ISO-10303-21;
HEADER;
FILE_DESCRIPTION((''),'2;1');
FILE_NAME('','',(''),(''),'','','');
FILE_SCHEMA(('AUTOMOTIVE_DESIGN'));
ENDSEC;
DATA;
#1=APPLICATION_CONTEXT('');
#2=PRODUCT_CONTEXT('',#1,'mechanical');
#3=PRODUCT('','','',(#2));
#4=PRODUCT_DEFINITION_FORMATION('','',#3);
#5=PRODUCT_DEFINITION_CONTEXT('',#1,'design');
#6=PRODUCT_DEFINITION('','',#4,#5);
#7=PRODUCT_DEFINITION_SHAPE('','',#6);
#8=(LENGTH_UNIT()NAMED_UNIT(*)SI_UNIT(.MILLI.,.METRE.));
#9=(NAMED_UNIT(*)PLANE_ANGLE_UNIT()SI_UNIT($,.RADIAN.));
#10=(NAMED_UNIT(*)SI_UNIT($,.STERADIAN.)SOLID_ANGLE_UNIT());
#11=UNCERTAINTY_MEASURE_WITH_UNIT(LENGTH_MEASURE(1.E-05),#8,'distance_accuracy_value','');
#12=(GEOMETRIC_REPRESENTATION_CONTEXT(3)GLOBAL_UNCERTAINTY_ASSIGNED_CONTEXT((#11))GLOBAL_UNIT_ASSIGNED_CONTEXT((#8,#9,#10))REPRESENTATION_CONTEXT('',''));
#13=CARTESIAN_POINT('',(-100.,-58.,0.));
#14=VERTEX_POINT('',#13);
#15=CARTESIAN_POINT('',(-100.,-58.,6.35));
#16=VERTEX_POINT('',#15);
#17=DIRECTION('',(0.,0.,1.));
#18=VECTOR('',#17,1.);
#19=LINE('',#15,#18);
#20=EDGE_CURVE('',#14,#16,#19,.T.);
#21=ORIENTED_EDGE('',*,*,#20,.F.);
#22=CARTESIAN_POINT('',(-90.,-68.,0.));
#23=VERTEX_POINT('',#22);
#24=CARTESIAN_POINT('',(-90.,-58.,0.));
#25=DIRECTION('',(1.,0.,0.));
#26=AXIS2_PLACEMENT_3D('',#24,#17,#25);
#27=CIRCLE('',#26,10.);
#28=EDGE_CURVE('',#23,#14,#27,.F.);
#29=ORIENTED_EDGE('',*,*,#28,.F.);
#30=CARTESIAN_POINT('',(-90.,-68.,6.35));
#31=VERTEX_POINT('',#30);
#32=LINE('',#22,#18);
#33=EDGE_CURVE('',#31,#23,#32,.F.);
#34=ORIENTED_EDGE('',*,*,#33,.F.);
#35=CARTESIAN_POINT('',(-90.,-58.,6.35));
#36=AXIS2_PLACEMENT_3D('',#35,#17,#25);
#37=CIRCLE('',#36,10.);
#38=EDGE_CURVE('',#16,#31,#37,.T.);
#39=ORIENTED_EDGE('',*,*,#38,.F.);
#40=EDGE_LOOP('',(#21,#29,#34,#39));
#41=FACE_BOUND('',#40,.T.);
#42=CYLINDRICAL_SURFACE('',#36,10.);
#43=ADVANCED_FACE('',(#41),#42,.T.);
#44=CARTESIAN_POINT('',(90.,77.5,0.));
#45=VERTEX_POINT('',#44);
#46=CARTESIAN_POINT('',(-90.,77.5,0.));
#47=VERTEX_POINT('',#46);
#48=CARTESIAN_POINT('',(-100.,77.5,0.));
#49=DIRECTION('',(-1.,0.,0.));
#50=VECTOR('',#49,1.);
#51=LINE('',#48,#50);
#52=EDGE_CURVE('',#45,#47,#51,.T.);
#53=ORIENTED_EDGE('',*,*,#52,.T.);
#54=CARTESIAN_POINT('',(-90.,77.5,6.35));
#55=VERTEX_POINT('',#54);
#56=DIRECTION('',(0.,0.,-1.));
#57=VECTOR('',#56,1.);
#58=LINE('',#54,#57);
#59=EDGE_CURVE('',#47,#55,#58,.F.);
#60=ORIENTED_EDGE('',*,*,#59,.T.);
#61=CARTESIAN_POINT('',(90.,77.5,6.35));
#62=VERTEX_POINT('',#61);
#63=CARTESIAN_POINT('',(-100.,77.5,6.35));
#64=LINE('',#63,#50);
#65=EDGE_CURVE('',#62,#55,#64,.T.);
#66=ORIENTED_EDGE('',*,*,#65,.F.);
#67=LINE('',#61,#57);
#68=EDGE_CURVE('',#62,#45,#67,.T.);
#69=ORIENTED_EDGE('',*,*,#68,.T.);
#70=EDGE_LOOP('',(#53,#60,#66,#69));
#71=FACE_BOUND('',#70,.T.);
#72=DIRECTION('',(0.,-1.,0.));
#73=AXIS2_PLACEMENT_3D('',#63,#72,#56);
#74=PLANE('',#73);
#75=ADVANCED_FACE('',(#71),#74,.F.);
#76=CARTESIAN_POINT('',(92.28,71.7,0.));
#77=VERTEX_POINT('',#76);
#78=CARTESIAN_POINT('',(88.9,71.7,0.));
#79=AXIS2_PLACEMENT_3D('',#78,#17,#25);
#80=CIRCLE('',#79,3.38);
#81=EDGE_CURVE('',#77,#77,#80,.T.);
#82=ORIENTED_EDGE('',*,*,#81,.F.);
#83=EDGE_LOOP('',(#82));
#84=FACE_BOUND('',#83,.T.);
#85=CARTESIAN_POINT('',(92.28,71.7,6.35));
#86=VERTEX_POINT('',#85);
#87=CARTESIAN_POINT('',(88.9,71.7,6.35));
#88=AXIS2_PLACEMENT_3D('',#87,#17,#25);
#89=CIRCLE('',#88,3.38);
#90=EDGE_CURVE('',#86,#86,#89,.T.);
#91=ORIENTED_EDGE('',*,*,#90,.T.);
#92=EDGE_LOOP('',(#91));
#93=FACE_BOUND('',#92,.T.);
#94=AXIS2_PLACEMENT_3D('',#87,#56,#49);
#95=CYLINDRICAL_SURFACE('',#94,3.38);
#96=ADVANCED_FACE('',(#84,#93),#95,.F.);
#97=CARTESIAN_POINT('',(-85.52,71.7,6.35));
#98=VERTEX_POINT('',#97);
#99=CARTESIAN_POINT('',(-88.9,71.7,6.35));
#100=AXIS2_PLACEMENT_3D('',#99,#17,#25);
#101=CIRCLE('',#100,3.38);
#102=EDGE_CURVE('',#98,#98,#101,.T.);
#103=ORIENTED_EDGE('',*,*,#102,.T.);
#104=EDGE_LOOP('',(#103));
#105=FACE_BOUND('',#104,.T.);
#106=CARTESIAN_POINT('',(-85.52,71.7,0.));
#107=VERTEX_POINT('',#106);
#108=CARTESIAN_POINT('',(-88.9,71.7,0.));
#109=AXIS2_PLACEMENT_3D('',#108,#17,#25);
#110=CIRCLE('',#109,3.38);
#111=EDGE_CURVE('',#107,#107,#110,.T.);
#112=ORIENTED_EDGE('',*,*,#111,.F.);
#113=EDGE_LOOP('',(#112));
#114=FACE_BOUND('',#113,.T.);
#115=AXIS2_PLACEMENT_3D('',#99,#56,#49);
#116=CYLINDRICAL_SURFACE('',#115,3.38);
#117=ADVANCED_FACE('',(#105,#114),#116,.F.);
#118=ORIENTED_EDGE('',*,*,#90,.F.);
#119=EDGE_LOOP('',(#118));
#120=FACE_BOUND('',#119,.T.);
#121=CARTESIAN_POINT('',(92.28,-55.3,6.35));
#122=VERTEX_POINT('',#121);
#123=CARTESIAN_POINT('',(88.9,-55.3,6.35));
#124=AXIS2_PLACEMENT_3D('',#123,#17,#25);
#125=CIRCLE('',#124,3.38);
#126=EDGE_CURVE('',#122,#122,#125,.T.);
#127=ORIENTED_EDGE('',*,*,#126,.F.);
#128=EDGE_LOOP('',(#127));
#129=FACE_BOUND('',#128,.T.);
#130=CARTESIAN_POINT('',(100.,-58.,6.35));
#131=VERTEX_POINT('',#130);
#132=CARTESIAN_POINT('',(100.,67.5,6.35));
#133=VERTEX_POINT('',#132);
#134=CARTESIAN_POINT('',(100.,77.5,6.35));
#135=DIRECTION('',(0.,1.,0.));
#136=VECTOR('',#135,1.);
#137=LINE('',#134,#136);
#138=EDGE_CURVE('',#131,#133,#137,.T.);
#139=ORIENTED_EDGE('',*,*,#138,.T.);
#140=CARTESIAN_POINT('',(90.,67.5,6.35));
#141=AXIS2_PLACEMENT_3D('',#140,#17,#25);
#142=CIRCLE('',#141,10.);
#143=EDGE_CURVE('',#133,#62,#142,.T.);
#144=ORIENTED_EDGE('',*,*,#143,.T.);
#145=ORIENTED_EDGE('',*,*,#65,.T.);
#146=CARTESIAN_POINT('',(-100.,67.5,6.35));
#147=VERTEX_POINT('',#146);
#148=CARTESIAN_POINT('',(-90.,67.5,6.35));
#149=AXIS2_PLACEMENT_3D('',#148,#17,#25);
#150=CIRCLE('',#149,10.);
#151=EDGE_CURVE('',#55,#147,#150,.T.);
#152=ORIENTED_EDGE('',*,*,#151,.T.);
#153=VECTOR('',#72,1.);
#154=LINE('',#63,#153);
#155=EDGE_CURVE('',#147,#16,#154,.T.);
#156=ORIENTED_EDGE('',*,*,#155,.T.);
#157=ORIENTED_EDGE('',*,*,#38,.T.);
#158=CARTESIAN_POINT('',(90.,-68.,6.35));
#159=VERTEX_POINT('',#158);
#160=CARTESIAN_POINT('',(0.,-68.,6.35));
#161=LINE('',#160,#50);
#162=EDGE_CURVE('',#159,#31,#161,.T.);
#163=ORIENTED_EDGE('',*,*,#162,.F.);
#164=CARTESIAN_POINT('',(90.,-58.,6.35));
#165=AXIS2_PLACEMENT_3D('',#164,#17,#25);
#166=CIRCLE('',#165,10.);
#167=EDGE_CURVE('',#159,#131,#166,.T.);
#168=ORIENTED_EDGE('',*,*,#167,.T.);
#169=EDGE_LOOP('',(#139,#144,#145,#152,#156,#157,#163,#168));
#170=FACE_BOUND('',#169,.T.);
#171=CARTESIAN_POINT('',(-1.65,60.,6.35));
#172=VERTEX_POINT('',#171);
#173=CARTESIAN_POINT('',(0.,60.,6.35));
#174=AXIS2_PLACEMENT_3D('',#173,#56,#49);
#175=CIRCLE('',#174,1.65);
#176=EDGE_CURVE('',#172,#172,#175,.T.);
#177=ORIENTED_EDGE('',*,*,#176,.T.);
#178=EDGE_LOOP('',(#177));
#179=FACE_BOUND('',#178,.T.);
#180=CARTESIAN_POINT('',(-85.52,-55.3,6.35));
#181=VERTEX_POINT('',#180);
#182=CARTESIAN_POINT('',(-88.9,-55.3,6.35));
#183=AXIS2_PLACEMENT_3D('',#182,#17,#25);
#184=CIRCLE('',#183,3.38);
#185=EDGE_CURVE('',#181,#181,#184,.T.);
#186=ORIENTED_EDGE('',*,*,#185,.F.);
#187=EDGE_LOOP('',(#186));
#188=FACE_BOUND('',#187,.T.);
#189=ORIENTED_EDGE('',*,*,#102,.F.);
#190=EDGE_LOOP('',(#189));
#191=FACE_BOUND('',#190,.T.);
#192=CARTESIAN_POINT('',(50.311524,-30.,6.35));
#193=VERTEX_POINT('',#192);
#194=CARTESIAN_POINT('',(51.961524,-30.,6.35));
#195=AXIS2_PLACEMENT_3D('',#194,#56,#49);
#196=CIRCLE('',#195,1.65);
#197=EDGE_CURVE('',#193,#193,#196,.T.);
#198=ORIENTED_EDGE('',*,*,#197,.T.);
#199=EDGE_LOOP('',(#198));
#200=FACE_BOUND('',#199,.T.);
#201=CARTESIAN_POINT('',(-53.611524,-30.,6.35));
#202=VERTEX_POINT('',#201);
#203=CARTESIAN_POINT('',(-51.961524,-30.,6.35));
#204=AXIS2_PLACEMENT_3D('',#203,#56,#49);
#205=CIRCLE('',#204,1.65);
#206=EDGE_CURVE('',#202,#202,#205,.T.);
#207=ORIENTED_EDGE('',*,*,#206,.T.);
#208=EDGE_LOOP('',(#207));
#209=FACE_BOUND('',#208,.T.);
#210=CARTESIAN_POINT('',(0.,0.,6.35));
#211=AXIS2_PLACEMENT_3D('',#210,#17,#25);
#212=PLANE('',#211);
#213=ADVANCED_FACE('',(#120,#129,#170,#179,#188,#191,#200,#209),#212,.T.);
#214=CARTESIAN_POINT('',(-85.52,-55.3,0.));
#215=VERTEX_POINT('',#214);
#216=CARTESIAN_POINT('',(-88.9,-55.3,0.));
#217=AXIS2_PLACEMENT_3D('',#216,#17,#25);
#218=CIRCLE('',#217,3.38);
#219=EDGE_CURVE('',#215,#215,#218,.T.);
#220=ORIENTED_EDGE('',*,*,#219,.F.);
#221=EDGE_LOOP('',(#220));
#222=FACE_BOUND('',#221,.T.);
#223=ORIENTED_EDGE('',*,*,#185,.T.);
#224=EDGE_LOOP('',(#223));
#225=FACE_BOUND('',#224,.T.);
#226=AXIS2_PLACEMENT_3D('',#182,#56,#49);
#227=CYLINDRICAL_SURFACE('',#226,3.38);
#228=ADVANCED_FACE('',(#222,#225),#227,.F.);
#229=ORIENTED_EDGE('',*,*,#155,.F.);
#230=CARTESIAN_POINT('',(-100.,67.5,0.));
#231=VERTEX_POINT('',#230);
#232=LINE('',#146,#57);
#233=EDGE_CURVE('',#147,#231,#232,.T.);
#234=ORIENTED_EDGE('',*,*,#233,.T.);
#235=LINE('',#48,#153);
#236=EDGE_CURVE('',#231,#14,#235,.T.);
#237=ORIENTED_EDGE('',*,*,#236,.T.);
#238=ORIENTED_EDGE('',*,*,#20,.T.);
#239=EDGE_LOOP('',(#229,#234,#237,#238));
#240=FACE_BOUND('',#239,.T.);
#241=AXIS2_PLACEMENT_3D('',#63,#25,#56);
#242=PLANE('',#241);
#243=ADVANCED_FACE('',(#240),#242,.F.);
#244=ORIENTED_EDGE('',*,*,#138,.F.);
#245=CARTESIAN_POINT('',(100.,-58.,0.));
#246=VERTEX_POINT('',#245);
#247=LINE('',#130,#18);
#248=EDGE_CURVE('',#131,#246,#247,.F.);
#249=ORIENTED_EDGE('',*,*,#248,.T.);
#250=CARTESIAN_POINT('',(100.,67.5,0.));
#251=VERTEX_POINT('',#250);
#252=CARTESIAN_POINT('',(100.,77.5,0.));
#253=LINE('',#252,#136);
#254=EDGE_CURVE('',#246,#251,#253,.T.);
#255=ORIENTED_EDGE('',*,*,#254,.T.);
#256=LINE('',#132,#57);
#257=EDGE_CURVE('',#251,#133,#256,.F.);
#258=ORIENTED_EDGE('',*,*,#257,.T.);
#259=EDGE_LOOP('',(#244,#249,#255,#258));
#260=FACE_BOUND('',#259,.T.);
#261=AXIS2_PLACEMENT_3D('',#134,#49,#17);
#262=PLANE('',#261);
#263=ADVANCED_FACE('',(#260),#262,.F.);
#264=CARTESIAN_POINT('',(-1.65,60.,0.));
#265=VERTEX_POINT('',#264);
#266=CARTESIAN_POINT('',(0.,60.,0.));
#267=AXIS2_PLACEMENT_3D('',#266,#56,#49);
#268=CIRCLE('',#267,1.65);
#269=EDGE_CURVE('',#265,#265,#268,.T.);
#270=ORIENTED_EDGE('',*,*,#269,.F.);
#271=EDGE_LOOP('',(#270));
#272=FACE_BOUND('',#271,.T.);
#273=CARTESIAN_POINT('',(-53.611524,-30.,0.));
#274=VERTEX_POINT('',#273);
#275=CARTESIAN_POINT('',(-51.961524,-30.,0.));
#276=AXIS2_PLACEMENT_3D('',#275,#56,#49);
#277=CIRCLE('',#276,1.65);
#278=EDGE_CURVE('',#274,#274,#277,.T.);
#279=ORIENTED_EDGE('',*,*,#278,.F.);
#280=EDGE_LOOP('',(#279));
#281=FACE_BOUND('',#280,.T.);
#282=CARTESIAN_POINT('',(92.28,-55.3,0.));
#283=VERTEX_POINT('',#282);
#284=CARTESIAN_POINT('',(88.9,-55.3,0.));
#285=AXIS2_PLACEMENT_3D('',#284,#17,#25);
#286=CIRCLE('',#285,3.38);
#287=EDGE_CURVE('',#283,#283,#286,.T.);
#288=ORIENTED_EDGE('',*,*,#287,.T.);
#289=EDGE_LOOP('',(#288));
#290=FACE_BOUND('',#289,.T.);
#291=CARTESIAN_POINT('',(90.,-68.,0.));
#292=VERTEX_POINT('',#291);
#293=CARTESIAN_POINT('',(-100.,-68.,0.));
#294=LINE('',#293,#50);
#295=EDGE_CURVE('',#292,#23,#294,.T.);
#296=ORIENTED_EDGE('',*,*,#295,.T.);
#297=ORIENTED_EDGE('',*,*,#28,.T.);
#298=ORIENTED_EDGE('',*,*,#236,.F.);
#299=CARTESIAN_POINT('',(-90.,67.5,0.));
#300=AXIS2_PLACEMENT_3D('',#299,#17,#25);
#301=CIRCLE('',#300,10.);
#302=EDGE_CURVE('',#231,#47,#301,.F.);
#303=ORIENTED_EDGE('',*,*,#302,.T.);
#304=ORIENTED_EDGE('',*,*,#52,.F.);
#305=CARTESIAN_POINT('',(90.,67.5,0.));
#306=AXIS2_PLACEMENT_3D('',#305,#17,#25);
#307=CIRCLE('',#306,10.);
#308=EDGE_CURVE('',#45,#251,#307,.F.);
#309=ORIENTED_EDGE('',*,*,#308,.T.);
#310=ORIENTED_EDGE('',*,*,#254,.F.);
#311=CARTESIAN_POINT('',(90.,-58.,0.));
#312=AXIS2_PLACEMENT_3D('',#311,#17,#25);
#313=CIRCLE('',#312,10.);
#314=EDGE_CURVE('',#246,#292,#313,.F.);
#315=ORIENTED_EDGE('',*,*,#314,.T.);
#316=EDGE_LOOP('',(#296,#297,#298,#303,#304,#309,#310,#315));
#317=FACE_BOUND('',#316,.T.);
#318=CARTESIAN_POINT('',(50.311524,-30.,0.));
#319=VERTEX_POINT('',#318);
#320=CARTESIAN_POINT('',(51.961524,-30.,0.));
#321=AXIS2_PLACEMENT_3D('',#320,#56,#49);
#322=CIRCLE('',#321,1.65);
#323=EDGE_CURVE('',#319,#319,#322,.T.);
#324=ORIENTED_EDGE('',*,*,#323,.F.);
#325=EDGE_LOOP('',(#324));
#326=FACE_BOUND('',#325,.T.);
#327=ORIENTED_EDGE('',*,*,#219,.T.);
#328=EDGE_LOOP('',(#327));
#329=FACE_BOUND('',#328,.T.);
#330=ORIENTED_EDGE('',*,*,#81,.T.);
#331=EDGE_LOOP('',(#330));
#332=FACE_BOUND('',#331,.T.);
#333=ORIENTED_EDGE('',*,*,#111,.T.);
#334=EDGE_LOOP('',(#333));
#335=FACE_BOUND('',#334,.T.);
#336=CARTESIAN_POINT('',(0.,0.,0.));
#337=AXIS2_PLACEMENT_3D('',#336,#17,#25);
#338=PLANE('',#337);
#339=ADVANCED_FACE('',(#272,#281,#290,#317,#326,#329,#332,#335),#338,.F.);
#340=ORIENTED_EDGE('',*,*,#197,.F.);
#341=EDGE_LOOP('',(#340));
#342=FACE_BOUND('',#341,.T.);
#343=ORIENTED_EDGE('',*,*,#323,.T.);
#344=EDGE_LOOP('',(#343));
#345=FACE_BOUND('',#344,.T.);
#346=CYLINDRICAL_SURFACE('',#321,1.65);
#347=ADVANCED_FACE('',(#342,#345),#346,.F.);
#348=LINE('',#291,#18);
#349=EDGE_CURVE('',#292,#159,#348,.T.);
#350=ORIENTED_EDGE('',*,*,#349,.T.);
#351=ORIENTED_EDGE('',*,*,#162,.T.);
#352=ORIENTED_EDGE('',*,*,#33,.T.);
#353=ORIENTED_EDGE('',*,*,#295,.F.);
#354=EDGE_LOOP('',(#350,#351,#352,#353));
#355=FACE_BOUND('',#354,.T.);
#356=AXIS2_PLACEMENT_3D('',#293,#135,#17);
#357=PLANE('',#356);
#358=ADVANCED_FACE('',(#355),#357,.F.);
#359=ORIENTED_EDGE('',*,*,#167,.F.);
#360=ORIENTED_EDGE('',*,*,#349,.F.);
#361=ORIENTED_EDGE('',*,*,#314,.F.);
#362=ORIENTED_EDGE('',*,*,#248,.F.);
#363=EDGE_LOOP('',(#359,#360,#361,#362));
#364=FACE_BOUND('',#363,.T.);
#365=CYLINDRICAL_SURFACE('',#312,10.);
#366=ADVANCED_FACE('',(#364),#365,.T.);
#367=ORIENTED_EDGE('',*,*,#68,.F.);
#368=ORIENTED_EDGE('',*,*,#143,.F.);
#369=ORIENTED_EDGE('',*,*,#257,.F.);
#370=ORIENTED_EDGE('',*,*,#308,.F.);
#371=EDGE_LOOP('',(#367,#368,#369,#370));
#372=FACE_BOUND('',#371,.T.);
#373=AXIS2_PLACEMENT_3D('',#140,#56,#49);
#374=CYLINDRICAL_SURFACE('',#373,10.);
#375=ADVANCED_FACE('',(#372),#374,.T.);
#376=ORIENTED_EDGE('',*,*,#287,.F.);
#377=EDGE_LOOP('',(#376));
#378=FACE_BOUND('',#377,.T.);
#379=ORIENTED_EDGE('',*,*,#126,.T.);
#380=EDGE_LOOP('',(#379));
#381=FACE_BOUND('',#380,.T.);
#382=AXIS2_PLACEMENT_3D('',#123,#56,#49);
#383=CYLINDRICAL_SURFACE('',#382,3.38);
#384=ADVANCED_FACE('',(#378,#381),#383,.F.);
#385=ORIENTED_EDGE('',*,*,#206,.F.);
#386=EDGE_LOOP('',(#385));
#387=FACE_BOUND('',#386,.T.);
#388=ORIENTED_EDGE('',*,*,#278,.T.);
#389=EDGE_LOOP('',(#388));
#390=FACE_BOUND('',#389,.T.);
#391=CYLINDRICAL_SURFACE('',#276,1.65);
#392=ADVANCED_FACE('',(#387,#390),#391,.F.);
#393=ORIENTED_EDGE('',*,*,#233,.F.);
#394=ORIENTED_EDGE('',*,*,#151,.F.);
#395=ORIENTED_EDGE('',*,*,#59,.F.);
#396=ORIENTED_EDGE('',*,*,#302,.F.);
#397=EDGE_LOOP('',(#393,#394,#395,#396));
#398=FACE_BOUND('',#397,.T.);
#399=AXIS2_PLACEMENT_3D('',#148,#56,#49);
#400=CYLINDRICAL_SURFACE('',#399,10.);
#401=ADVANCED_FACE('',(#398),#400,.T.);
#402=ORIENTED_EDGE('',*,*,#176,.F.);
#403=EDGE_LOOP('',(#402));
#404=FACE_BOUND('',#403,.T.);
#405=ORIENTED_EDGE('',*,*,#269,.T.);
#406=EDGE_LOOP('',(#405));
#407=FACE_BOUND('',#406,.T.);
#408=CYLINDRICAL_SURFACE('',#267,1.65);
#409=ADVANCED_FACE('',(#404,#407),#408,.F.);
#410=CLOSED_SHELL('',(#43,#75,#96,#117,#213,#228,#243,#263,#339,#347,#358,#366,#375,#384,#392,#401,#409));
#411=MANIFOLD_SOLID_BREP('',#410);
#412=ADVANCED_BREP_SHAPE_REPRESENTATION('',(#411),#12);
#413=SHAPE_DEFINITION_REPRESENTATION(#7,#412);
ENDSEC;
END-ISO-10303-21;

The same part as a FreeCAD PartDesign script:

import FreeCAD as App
import Part
import Sketcher
from FreeCAD import Vector
Q = App.Units.Quantity


def edges_at(feature, points):
    """Names of the edges that pass closest to the given points."""
    edges = feature.Shape.Edges
    near = lambda p: min(range(len(edges)), key=lambda i: edges[i].distToShape(Part.Vertex(*p))[0])
    return sorted({f"Edge{near(p) + 1}" for p in points})

doc = App.newDocument("Part")
body = doc.addObject("PartDesign::Body", "Body")

sketch1 = body.newObject("Sketcher::SketchObject", "Sketch")
sketch1.AttachmentSupport = (doc.getObject("XY_Plane"), [""])
sketch1.MapMode = "FlatFace"
sketch1.addGeometry([
    Part.LineSegment(Vector(-100, 77.5, 0), Vector(-100, -77.5, 0)),
    Part.LineSegment(Vector(-100, -77.5, 0), Vector(100, -77.5, 0)),
    Part.LineSegment(Vector(100, -77.5, 0), Vector(100, 77.5, 0)),
    Part.LineSegment(Vector(100, 77.5, 0), Vector(-100, 77.5, 0)),
    Part.Circle(Vector(-88.9, -55.3, 0), Vector(0, 0, 1), 3.38),
    Part.Circle(Vector(88.9, -55.3, 0), Vector(0, 0, 1), 3.38),
    Part.Circle(Vector(-88.9, 71.7, 0), Vector(0, 0, 1), 3.38),
    Part.Circle(Vector(88.9, 71.7, 0), Vector(0, 0, 1), 3.38),
], False)
sketch1.addConstraint([
    Sketcher.Constraint("Coincident", 0, 2, 1, 1),
    Sketcher.Constraint("Coincident", 1, 2, 2, 1),
    Sketcher.Constraint("Coincident", 2, 2, 3, 1),
    Sketcher.Constraint("Coincident", 3, 2, 0, 1),
    Sketcher.Constraint("Vertical", 0),
    Sketcher.Constraint("Horizontal", 1),
    Sketcher.Constraint("Vertical", 2),
    Sketcher.Constraint("Horizontal", 3),
    Sketcher.Constraint("Equal", 4, 5),
    Sketcher.Constraint("Equal", 5, 6),
    Sketcher.Constraint("Equal", 6, 7),
    Sketcher.Constraint("Symmetric", 0, 2, 2, 2, -1, 1),
    Sketcher.Constraint("Symmetric", 4, 3, 5, 3, -2),
    Sketcher.Constraint("Symmetric", 6, 3, 7, 3, -2),
    Sketcher.Constraint("Vertical", 4, 3, 6, 3),
    Sketcher.Constraint("Diameter", 4, Q("6.76 mm")),
    Sketcher.Constraint("DistanceX", 1, 1, 1, 2, Q("200 mm")),
    Sketcher.Constraint("DistanceY", 0, 2, 0, 1, Q("155 mm")),
    Sketcher.Constraint("DistanceY", 4, 3, 6, 3, Q("127 mm")),
    Sketcher.Constraint("DistanceX", 4, 3, -1, 1, Q("88.9 mm")),
    Sketcher.Constraint("DistanceY", 4, 3, -1, 1, Q("55.3 mm")),
])
pad1 = body.newObject("PartDesign::Pad", "Pad")
pad1.Profile = sketch1
pad1.Length = 6.35

sketch2 = body.newObject("Sketcher::SketchObject", "Sketch001")
sketch2.AttachmentSupport = (doc.getObject("XY_Plane"), [""])
sketch2.MapMode = "FlatFace"
sketch2.addGeometry([
    Part.Circle(Vector(51.961524, -30, 0), Vector(0, 0, 1), 1.65),
    Part.Circle(Vector(-51.961524, -30, 0), Vector(0, 0, 1), 1.65),
    Part.Circle(Vector(0, 60, 0), Vector(0, 0, 1), 1.65),
], False)
sketch2.addConstraint([
    Sketcher.Constraint("Equal", 0, 1),
    Sketcher.Constraint("Equal", 1, 2),
    Sketcher.Constraint("Symmetric", 0, 3, 1, 3, -2),
    Sketcher.Constraint("PointOnObject", 2, 3, -2),
    Sketcher.Constraint("Diameter", 0, Q("3.3 mm")),
    Sketcher.Constraint("DistanceY", 0, 3, -1, 1, Q("30 mm")),
    Sketcher.Constraint("DistanceY", -1, 1, 2, 3, Q("60 mm")),
    Sketcher.Constraint("DistanceX", 1, 3, 0, 3, Q("103.923048 mm")),
])
doc.recompute()
hole = body.newObject("PartDesign::Hole", "Hole")
hole.Profile = sketch2
hole.ThreadType = "None"
hole.Diameter = 3.3
hole.DepthType = "ThroughAll"
hole.Reversed = True

sketch3 = body.newObject("Sketcher::SketchObject", "Sketch002")
sketch3.AttachmentSupport = (doc.getObject("XY_Plane"), [""])
sketch3.MapMode = "FlatFace"
sketch3.AttachmentOffset = App.Placement(Vector(0, 0, 6.35), App.Rotation())
sketch3.addGeometry([
    Part.LineSegment(Vector(-100, -68, 0), Vector(-100, -77.5, 0)),
    Part.LineSegment(Vector(-100, -77.5, 0), Vector(100, -77.5, 0)),
    Part.LineSegment(Vector(100, -77.5, 0), Vector(100, -68, 0)),
    Part.LineSegment(Vector(100, -68, 0), Vector(-100, -68, 0)),
], False)
sketch3.addConstraint([
    Sketcher.Constraint("Coincident", 0, 2, 1, 1),
    Sketcher.Constraint("Coincident", 1, 2, 2, 1),
    Sketcher.Constraint("Coincident", 2, 2, 3, 1),
    Sketcher.Constraint("Coincident", 3, 2, 0, 1),
    Sketcher.Constraint("Vertical", 0),
    Sketcher.Constraint("Horizontal", 1),
    Sketcher.Constraint("Vertical", 2),
    Sketcher.Constraint("Horizontal", 3),
    Sketcher.Constraint("DistanceX", 1, 1, 1, 2, Q("200 mm")),
    Sketcher.Constraint("DistanceY", 0, 2, 0, 1, Q("9.5 mm")),
    Sketcher.Constraint("DistanceX", 0, 2, -1, 1, Q("100 mm")),
    Sketcher.Constraint("DistanceY", 2, 2, -1, 1, Q("68 mm")),
])
pocket1 = body.newObject("PartDesign::Pocket", "Pocket")
pocket1.Profile = sketch3
pocket1.Type = "ThroughAll"
pocket1.Midplane = True
doc.recompute()

fillet = body.newObject("PartDesign::Fillet", "Fillet")
fillet.Base = (pocket1, edges_at(pocket1, [
    (-100, -68, 3.175),
    (100, -68, 3.175),
    (-100, 77.5, 3.175),
    (100, 77.5, 3.175),
]))
fillet.Radius = 10

doc.recompute()
